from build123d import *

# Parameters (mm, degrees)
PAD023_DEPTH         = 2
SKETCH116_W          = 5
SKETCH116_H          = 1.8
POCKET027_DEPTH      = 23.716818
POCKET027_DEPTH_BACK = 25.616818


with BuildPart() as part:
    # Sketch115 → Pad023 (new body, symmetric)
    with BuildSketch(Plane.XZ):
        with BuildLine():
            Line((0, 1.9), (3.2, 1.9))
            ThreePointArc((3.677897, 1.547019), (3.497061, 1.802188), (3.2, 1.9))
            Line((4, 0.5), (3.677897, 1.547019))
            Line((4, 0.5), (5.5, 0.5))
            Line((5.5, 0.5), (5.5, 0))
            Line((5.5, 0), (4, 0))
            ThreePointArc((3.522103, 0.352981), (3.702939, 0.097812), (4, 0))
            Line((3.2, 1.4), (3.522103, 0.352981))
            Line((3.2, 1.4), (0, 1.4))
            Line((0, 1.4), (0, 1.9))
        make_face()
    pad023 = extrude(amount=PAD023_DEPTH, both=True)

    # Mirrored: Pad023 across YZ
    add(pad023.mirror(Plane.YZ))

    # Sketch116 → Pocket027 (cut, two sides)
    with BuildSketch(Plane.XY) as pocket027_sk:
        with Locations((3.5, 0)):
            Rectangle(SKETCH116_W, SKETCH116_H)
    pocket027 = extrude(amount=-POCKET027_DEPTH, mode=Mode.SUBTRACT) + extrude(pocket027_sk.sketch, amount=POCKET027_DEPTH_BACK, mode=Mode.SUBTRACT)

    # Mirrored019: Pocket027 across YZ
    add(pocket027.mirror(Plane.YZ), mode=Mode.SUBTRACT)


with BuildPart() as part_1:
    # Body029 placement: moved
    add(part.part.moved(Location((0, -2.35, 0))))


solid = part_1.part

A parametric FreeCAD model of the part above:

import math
import FreeCAD as App
import Part
import Sketcher
from FreeCAD import Vector


def add_polygon(sketch, points):
    """Adds a closed chain of lines whose ends are joined by coincident constraints."""
    first, n = sketch.GeometryCount, len(points)
    for a, b in zip(points, points[1:] + points[:1]):
        sketch.addGeometry(Part.LineSegment(App.Vector(*a, 0), App.Vector(*b, 0)), False)
    for i in range(n):
        sketch.addConstraint(Sketcher.Constraint("Coincident", first + i, 2, first + (i + 1) % n, 1))

doc = App.newDocument("Part")
params = doc.addObject("Spreadsheet::Sheet", "Params")
for row, (alias, value) in enumerate([
    ("sketch1_radius", "0.499999 mm"),
    ("sketch1_width", "3.2 mm"),
    ("sketch1_width2", "1.5 mm"),
    ("pad1_length", "4 mm"),
    ("sketch2_width", "5 mm"),
    ("sketch2_height", "1.8 mm"),
], start=1):
    params.set(f"A{row}", alias)
    params.set(f"B{row}", "=" + value)
    params.setAlias(f"B{row}", alias)

body = doc.addObject("PartDesign::Body", "Body")

# Sketch on XZ plane
sketch1 = body.newObject("Sketcher::SketchObject", "Sketch")
sketch1.AttachmentSupport = (doc.getObject("XZ_Plane"), [""])
sketch1.MapMode = "FlatFace"
sketch1.addGeometry(Part.LineSegment(Vector(3.2, 1.9, 0), Vector(0, 1.9, 0)), False)
sketch1.addGeometry(Part.LineSegment(Vector(0, 1.9, 0), Vector(0, 1.4, 0)), False)
sketch1.addGeometry(Part.LineSegment(Vector(0, 1.4, 0), Vector(3.2, 1.4, 0)), False)
sketch1.addGeometry(Part.LineSegment(Vector(3.2, 1.4, 0), Vector(3.52, 0.35, 0)), False)
sketch1.addGeometry(Part.ArcOfCircle(Part.Circle(Vector(4, 0.5, 0), Vector(0, 0, 1), 0.5), math.radians(-163), math.radians(-90)), False)
sketch1.addGeometry(Part.LineSegment(Vector(4, 0, 0), Vector(5.5, 0, 0)), False)
sketch1.addGeometry(Part.LineSegment(Vector(5.5, 0, 0), Vector(5.5, 0.5, 0)), False)
sketch1.addGeometry(Part.LineSegment(Vector(5.5, 0.5, 0), Vector(4, 0.5, 0)), False)
sketch1.addGeometry(Part.LineSegment(Vector(4, 0.5, 0), Vector(3.68, 1.55, 0)), False)
sketch1.addGeometry(Part.ArcOfCircle(Part.Circle(Vector(3.2, 1.4, 0), Vector(0, 0, 1), 0.5), math.radians(17), math.radians(90)), False)
sketch1.addConstraint(Sketcher.Constraint("Coincident", 0, 2, 1, 1))
sketch1.addConstraint(Sketcher.Constraint("Coincident", 1, 2, 2, 1))
sketch1.addConstraint(Sketcher.Constraint("Coincident", 2, 2, 3, 1))
sketch1.addConstraint(Sketcher.Constraint("Coincident", 3, 2, 4, 1))
sketch1.addConstraint(Sketcher.Constraint("Coincident", 4, 2, 5, 1))
sketch1.addConstraint(Sketcher.Constraint("Coincident", 5, 2, 6, 1))
sketch1.addConstraint(Sketcher.Constraint("Coincident", 6, 2, 7, 1))
sketch1.addConstraint(Sketcher.Constraint("Coincident", 7, 2, 8, 1))
sketch1.addConstraint(Sketcher.Constraint("Coincident", 8, 2, 9, 1))
sketch1.addConstraint(Sketcher.Constraint("Coincident", 9, 2, 0, 1))
sketch1.addConstraint(Sketcher.Constraint("Horizontal", 0))
sketch1.addConstraint(Sketcher.Constraint("Vertical", 1))
sketch1.addConstraint(Sketcher.Constraint("Horizontal", 2))
sketch1.addConstraint(Sketcher.Constraint("Horizontal", 5))
sketch1.addConstraint(Sketcher.Constraint("Vertical", 6))
sketch1.addConstraint(Sketcher.Constraint("Horizontal", 7))
sketch1.addConstraint(Sketcher.Constraint("Coincident", 2, 2, 9, 3))
sketch1.addConstraint(Sketcher.Constraint("Coincident", 7, 2, 4, 3))
sketch1.addConstraint(Sketcher.Constraint("Equal", 4, 9))
sketch1.addConstraint(Sketcher.Constraint("PointOnObject", 0, 2, -2))
sketch1.addConstraint(Sketcher.Constraint("PointOnObject", 4, 2, -1))
sketch1.addConstraint(Sketcher.Constraint("Vertical", 4, 2, 7, 2))
sketch1.addConstraint(Sketcher.Constraint("Vertical", 2, 2, 9, 2))
sketch1.addConstraint(Sketcher.Constraint("Equal", 3, 8))
sketch1.addConstraint(Sketcher.Constraint("Radius", 4, 0.499999))
sketch1.addConstraint(Sketcher.Constraint("DistanceX", 0, 2, 0, 1, 3.2))
sketch1.addConstraint(Sketcher.Constraint("DistanceX", 5, 1, 5, 2, 1.5))
sketch1.addConstraint(Sketcher.Constraint("DistanceX", -1, 1, 4, 3, 3.999999))
sketch1.addConstraint(Sketcher.Constraint("DistanceY", -1, 1, 9, 3, 1.400001))
sketch1.addConstraint(Sketcher.Constraint("DistanceX", 9, 3, 3, 2, 0.322102))
sketch1.setExpression("Constraints[24]", "Params.sketch1_radius")
sketch1.setExpression("Constraints[25]", "Params.sketch1_width")
sketch1.setExpression("Constraints[26]", "Params.sketch1_width2")
pad1 = body.newObject("PartDesign::Pad", "Pad")
pad1.Profile = sketch1
pad1.setExpression("Length", "Params.pad1_length")
pad1.Midplane = True
doc.recompute()

mirrored = body.newObject("PartDesign::Mirrored", "Mirrored")
mirrored.Originals = [pad1]
mirrored.MirrorPlane = (doc.getObject("YZ_Plane"), [""])
body.Tip = mirrored

# Sketch on XY plane
sketch2 = body.newObject("Sketcher::SketchObject", "Sketch001")
sketch2.AttachmentSupport = (doc.getObject("XY_Plane"), [""])
sketch2.MapMode = "FlatFace"
add_polygon(sketch2, [(1, 0.9), (1, -0.9), (6, -0.9), (6, 0.9)])  # lines 0-3
sketch2.addConstraint(Sketcher.Constraint("Vertical", 0))
sketch2.addConstraint(Sketcher.Constraint("Horizontal", 1))
sketch2.addConstraint(Sketcher.Constraint("Vertical", 2))
sketch2.addConstraint(Sketcher.Constraint("Horizontal", 3))
sketch2.addConstraint(Sketcher.Constraint("DistanceX", 1, 1, 1, 2, 5.0))
sketch2.addConstraint(Sketcher.Constraint("DistanceY", 0, 2, 0, 1, 1.8))
sketch2.addConstraint(Sketcher.Constraint("DistanceX", -1, 1, 0, 2, 1.0))
sketch2.addConstraint(Sketcher.Constraint("DistanceY", 0, 2, -1, 1, 0.9))
sketch2.setExpression("Constraints[8]", "Params.sketch2_width")
sketch2.setExpression("Constraints[9]", "Params.sketch2_height")
pocket1 = body.newObject("PartDesign::Pocket", "Pocket")
pocket1.Profile = sketch2
pocket1.Type = "ThroughAll"
pocket1.Midplane = True
doc.recompute()

mirrored2 = body.newObject("PartDesign::Mirrored", "Mirrored001")
mirrored2.Originals = [pocket1]
mirrored2.MirrorPlane = (doc.getObject("YZ_Plane"), [""])
body.Tip = mirrored2
body2 = doc.addObject("PartDesign::Body", "Body001")
doc.recompute()

body.Placement = App.Placement(Vector(0, -2.35, 0), App.Rotation(Vector(0, 0, 1), 0))
boolean = body2.newObject("PartDesign::Boolean", "Boolean")
boolean.Type = "Fuse"
boolean.addObjects([body])

doc.recompute()
